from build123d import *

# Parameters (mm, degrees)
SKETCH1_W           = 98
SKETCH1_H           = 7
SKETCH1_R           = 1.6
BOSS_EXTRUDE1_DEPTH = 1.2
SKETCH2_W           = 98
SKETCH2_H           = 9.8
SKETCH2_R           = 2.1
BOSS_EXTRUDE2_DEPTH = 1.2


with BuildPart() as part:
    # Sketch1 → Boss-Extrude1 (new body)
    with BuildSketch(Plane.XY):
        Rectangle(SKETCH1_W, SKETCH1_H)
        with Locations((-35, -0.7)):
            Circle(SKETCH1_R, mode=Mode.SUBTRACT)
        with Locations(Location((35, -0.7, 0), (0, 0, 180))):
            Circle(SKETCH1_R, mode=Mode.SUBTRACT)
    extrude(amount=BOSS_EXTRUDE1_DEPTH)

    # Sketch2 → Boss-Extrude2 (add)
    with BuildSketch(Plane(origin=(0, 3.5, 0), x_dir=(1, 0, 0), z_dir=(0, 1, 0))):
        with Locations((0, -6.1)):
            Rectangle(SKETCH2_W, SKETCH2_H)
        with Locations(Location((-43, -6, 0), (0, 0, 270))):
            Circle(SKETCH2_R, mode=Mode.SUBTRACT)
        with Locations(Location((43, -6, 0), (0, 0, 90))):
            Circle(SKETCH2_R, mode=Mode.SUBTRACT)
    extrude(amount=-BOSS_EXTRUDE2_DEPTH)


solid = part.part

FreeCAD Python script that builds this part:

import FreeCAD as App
import Part
import Sketcher
from FreeCAD import Vector

doc = App.newDocument("Part")
body = doc.addObject("PartDesign::Body", "Body")

sketch1 = body.newObject("Sketcher::SketchObject", "Sketch")
sketch1.AttachmentSupport = (doc.getObject("XY_Plane"), [""])
sketch1.MapMode = "FlatFace"
sketch1.addGeometry(Part.LineSegment(Vector(-49, 3.5, 0), Vector(-49, -3.5, 0)), False)
sketch1.addGeometry(Part.LineSegment(Vector(-49, -3.5, 0), Vector(49, -3.5, 0)), False)
sketch1.addGeometry(Part.LineSegment(Vector(49, -3.5, 0), Vector(49, 3.5, 0)), False)
sketch1.addGeometry(Part.LineSegment(Vector(49, 3.5, 0), Vector(-49, 3.5, 0)), False)
sketch1.addGeometry(Part.Circle(Vector(-35, -0.7, 0), Vector(0, 0, 1), 1.6), False)
sketch1.addGeometry(Part.Circle(Vector(35, -0.7, 0), Vector(0, 0, 1), 1.6), False)
sketch1.addConstraint(Sketcher.Constraint("Coincident", 0, 2, 1, 1))
sketch1.addConstraint(Sketcher.Constraint("Coincident", 1, 2, 2, 1))
sketch1.addConstraint(Sketcher.Constraint("Coincident", 2, 2, 3, 1))
sketch1.addConstraint(Sketcher.Constraint("Coincident", 3, 2, 0, 1))
sketch1.addConstraint(Sketcher.Constraint("Vertical", 0))
sketch1.addConstraint(Sketcher.Constraint("Horizontal", 1))
sketch1.addConstraint(Sketcher.Constraint("Vertical", 2))
sketch1.addConstraint(Sketcher.Constraint("Horizontal", 3))
sketch1.addConstraint(Sketcher.Constraint("Equal", 4, 5))
sketch1.addConstraint(Sketcher.Constraint("Symmetric", 0, 2, 2, 2, -1, 1))
sketch1.addConstraint(Sketcher.Constraint("Symmetric", 4, 3, 5, 3, -2))
sketch1.addConstraint(Sketcher.Constraint("Diameter", 4, 3.2))
sketch1.addConstraint(Sketcher.Constraint("DistanceX", 1, 1, 1, 2, 98.0))
sketch1.addConstraint(Sketcher.Constraint("DistanceY", 0, 2, 0, 1, 7.0))
sketch1.addConstraint(Sketcher.Constraint("DistanceX", 4, 3, -1, 1, 35.0))
sketch1.addConstraint(Sketcher.Constraint("DistanceY", 4, 3, -1, 1, 0.7))
pad1 = body.newObject("PartDesign::Pad", "Pad")
pad1.Profile = sketch1
pad1.Length = 1.2

sketch2 = body.newObject("Sketcher::SketchObject", "Sketch001")
sketch2.AttachmentSupport = (doc.getObject("XZ_Plane"), [""])
sketch2.MapMode = "FlatFace"
sketch2.AttachmentOffset = App.Placement(Vector(0, 0, -3.5), App.Rotation())
sketch2.addGeometry(Part.LineSegment(Vector(-49, 1.2, 0), Vector(-49, 11, 0)), False)
sketch2.addGeometry(Part.LineSegment(Vector(-49, 11, 0), Vector(49, 11, 0)), False)
sketch2.addGeometry(Part.LineSegment(Vector(49, 11, 0), Vector(49, 1.2, 0)), False)
sketch2.addGeometry(Part.LineSegment(Vector(49, 1.2, 0), Vector(-49, 1.2, 0)), False)
sketch2.addGeometry(Part.Circle(Vector(-43, 6, 0), Vector(0, 0, 1), 2.1), False)
sketch2.addGeometry(Part.Circle(Vector(43, 6, 0), Vector(0, 0, 1), 2.1), False)
sketch2.addConstraint(Sketcher.Constraint("Coincident", 0, 2, 1, 1))
sketch2.addConstraint(Sketcher.Constraint("Coincident", 1, 2, 2, 1))
sketch2.addConstraint(Sketcher.Constraint("Coincident", 2, 2, 3, 1))
sketch2.addConstraint(Sketcher.Constraint("Coincident", 3, 2, 0, 1))
sketch2.addConstraint(Sketcher.Constraint("Vertical", 0))
sketch2.addConstraint(Sketcher.Constraint("Horizontal", 1))
sketch2.addConstraint(Sketcher.Constraint("Vertical", 2))
sketch2.addConstraint(Sketcher.Constraint("Horizontal", 3))
sketch2.addConstraint(Sketcher.Constraint("Equal", 4, 5))
sketch2.addConstraint(Sketcher.Constraint("Symmetric", 4, 3, 5, 3, -2))
sketch2.addConstraint(Sketcher.Constraint("Diameter", 4, 4.2))
sketch2.addConstraint(Sketcher.Constraint("DistanceX", 1, 1, 1, 2, 98.0))
sketch2.addConstraint(Sketcher.Constraint("DistanceY", 0, 1, 0, 2, 9.8))
sketch2.addConstraint(Sketcher.Constraint("DistanceX", 4, 3, -1, 1, 43.0))
sketch2.addConstraint(Sketcher.Constraint("DistanceY", -1, 1, 4, 3, 6.0))
sketch2.addConstraint(Sketcher.Constraint("DistanceX", 0, 2, -1, 1, 49.0))
sketch2.addConstraint(Sketcher.Constraint("DistanceY", -1, 1, 0, 2, 11.0))
pad2 = body.newObject("PartDesign::Pad", "Pad001")
pad2.Profile = sketch2
pad2.Length = 1.2

doc.recompute()
